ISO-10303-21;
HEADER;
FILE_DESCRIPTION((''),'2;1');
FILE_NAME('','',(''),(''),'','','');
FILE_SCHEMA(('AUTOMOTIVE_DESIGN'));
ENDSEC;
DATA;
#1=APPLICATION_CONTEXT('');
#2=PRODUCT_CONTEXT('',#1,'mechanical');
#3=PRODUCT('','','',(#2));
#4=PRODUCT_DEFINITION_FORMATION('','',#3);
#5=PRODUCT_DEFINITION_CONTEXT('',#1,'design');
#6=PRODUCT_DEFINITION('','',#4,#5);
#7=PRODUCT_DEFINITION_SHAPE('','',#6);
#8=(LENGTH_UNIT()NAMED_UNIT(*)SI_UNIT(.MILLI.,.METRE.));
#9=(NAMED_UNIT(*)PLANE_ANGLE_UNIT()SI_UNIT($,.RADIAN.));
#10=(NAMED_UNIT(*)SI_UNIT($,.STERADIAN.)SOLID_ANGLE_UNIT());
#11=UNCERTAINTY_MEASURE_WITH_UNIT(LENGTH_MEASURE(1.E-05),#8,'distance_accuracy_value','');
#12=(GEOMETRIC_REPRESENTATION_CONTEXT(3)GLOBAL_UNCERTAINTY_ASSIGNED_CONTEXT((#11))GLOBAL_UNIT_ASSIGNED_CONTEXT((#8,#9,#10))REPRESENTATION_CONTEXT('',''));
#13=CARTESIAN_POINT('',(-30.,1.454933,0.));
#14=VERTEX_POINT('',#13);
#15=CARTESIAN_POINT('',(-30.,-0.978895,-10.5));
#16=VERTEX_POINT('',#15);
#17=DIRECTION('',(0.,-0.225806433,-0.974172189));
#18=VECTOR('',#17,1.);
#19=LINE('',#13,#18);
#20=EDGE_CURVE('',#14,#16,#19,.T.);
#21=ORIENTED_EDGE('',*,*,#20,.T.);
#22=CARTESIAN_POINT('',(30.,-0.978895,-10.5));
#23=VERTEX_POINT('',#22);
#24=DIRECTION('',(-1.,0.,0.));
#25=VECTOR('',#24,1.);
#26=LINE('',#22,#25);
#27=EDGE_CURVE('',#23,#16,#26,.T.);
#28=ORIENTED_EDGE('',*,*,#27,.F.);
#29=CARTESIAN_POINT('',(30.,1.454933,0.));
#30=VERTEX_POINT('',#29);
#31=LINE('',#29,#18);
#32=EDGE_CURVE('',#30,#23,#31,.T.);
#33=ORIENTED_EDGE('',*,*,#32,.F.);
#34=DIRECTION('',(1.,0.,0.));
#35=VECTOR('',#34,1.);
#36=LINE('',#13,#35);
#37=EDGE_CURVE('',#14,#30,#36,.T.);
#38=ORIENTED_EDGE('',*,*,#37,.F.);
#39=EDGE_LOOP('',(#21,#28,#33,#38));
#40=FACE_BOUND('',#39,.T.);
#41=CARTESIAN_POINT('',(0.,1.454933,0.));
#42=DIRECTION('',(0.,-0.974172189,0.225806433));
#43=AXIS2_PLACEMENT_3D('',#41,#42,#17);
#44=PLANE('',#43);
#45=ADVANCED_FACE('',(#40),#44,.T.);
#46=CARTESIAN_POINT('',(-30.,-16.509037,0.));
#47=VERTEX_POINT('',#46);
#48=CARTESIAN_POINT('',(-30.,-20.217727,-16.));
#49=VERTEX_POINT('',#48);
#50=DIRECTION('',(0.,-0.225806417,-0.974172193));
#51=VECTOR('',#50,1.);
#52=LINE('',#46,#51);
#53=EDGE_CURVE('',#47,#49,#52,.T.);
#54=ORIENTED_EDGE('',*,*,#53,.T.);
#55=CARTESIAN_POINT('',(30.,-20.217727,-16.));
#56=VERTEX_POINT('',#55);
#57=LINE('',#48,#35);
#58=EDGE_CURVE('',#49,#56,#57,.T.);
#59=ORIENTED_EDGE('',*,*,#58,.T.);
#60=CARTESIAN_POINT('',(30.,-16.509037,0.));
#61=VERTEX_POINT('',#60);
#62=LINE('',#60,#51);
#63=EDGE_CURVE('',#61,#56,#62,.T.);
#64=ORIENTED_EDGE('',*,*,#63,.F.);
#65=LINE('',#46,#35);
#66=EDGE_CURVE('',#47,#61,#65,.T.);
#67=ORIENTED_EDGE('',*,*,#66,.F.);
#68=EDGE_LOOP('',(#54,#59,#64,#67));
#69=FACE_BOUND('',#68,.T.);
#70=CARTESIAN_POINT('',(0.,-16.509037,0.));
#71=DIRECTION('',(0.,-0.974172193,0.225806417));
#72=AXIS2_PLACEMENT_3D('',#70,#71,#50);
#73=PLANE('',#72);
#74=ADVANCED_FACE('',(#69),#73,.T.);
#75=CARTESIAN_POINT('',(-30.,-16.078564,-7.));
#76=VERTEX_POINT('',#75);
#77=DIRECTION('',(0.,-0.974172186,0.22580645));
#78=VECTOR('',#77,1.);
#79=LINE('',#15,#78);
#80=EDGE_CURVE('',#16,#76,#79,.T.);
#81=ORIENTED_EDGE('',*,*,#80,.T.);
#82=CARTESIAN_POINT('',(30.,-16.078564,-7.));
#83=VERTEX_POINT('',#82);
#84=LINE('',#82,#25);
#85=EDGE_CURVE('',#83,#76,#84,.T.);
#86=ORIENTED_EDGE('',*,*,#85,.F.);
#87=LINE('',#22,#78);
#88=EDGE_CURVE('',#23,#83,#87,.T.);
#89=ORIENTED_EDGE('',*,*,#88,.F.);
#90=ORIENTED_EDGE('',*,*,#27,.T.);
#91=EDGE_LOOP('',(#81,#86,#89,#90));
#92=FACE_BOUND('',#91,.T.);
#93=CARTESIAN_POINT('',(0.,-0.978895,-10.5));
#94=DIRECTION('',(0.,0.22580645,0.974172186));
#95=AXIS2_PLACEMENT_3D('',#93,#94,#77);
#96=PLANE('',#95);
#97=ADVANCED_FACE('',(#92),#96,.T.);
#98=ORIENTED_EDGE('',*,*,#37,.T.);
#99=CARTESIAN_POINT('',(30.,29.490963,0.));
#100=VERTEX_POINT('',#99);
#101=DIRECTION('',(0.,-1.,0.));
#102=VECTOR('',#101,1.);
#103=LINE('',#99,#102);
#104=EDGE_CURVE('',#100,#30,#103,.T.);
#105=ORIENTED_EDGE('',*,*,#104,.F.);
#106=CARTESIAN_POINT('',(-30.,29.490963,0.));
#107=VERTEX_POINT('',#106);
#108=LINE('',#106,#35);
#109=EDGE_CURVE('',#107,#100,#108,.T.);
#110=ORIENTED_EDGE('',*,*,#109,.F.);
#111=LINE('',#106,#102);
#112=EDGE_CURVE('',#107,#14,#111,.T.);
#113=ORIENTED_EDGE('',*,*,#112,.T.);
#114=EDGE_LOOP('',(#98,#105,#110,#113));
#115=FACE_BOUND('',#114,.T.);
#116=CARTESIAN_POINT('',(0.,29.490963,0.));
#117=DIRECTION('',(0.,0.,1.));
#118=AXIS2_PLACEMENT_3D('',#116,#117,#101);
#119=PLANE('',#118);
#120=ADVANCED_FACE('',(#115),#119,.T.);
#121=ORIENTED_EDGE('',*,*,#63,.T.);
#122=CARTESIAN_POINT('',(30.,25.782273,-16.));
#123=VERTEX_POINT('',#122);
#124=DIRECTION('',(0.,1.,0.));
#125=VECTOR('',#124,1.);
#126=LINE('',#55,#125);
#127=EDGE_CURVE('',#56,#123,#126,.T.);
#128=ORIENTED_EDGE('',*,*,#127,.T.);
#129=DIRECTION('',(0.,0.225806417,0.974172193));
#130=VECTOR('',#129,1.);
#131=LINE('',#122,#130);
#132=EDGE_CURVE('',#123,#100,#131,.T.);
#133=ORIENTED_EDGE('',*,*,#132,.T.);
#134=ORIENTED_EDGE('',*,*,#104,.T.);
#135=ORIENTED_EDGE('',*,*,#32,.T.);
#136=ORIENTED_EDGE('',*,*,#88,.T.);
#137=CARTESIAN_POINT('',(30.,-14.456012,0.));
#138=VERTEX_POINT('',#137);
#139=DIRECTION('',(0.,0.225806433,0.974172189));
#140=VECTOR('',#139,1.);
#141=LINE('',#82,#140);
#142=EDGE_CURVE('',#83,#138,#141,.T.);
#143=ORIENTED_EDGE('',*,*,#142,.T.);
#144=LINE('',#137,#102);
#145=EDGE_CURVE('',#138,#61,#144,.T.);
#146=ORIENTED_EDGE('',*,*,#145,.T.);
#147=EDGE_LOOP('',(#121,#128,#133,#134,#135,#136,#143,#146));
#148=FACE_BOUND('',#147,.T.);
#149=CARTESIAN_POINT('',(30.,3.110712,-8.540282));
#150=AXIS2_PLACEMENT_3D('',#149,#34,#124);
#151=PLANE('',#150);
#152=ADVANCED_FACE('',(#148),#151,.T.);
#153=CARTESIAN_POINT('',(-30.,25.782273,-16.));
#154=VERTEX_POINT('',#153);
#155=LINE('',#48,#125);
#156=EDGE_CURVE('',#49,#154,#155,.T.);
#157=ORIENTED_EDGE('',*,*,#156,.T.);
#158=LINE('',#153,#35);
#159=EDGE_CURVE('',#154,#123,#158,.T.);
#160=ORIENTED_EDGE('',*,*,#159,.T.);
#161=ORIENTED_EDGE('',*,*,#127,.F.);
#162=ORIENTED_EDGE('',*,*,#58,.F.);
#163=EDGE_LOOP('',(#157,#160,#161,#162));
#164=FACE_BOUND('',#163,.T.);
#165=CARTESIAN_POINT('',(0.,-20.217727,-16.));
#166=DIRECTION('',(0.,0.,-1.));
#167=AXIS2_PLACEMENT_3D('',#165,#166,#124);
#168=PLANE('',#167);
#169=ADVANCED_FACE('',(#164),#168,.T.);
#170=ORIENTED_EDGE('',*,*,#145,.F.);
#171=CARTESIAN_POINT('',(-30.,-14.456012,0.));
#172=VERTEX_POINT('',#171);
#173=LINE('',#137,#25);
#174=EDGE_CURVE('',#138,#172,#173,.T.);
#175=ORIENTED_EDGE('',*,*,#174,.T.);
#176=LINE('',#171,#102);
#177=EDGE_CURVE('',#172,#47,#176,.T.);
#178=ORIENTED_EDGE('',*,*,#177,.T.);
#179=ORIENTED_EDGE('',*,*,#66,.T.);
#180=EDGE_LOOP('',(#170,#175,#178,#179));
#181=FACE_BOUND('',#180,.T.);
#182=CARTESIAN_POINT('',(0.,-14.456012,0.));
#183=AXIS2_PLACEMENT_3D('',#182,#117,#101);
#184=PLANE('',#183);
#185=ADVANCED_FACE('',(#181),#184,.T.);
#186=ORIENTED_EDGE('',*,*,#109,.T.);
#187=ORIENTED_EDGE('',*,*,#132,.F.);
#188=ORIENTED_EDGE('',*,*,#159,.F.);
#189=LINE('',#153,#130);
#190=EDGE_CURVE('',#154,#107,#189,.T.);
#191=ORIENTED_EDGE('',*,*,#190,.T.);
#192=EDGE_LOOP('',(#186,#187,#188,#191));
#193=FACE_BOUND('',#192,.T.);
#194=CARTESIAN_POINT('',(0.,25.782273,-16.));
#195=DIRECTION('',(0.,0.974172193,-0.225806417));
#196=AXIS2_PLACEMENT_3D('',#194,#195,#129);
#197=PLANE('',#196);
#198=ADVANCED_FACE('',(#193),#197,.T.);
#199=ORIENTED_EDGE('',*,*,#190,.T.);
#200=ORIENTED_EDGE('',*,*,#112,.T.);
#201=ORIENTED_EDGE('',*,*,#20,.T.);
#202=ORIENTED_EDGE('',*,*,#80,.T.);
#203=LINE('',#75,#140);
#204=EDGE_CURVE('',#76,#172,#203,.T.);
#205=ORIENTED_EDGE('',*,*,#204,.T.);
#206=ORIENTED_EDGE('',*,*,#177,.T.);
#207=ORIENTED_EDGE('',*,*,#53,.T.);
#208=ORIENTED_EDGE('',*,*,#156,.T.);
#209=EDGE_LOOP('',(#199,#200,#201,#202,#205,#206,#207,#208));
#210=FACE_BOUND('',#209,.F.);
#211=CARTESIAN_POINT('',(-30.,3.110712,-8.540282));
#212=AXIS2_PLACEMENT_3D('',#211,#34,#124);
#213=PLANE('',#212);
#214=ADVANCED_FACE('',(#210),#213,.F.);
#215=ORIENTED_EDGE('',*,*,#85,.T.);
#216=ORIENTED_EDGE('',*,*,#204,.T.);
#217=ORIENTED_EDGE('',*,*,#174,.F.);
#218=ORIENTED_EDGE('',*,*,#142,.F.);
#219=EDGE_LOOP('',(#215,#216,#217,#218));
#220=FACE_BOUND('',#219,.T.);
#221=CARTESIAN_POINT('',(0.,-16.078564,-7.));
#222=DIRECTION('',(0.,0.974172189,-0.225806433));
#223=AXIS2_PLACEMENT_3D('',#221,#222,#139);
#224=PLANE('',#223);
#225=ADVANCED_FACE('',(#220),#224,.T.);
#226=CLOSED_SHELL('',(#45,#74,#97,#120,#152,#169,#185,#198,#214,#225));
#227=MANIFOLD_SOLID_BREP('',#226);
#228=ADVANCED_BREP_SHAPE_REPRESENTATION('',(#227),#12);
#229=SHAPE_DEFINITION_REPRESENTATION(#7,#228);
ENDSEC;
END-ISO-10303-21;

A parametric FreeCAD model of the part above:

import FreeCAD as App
import Part
import Sketcher

doc = App.newDocument("Part")
body = doc.addObject("PartDesign::Body", "Body")

sketch1 = body.newObject("Sketcher::SketchObject", "Sketch")
sketch1.AttachmentSupport = (doc.getObject("YZ_Plane"), [""])
sketch1.MapMode = "FlatFace"
sketch1.addGeometry([
    Part.LineSegment(App.Vector(-14.5, 0, 0), App.Vector(-16.5, 0, 0)),
    Part.LineSegment(App.Vector(-16.5, 0, 0), App.Vector(-20.2, -16, 0)),
    Part.LineSegment(App.Vector(-20.2, -16, 0), App.Vector(25.8, -16, 0)),
    Part.LineSegment(App.Vector(25.8, -16, 0), App.Vector(29.5, 0, 0)),
    Part.LineSegment(App.Vector(29.5, 0, 0), App.Vector(1.5, 0, 0)),
    Part.LineSegment(App.Vector(1.5, 0, 0), App.Vector(-1, -10.5, 0)),
    Part.LineSegment(App.Vector(-1, -10.5, 0), App.Vector(-16.1, -7, 0)),
    Part.LineSegment(App.Vector(-16.1, -7, 0), App.Vector(-14.5, 0, 0)),
], False)
sketch1.addConstraint([
    Sketcher.Constraint("Coincident", 0, 2, 1, 1),
    Sketcher.Constraint("Coincident", 1, 2, 2, 1),
    Sketcher.Constraint("Coincident", 2, 2, 3, 1),
    Sketcher.Constraint("Coincident", 3, 2, 4, 1),
    Sketcher.Constraint("Coincident", 4, 2, 5, 1),
    Sketcher.Constraint("Coincident", 5, 2, 6, 1),
    Sketcher.Constraint("Coincident", 6, 2, 7, 1),
    Sketcher.Constraint("Coincident", 7, 2, 0, 1),
    Sketcher.Constraint("Horizontal", 0),
    Sketcher.Constraint("Horizontal", 2),
    Sketcher.Constraint("Horizontal", 4),
    Sketcher.Constraint("PointOnObject", 0, 2, -1),
    Sketcher.Constraint("PointOnObject", 3, 2, -1),
    Sketcher.Constraint("Parallel", 1, 3),
    Sketcher.Constraint("Parallel", 3, 5),
    Sketcher.Constraint("Perpendicular", 5, 6),
    Sketcher.Constraint("Perpendicular", 6, 7),
    Sketcher.Constraint("DistanceX", 2, 1, 2, 2, 46.0),
    Sketcher.Constraint("DistanceY", 1, 2, -1, 1, 16.0),
    Sketcher.Constraint("DistanceY", 6, 2, -1, 1, 7.0),
    Sketcher.Constraint("Distance", 6, 15.5),
    Sketcher.Constraint("DistanceY", 5, 2, -1, 1, 10.5),
    Sketcher.Constraint("DistanceX", 4, 2, 4, 1, 28.03603),
    Sketcher.Constraint("DistanceX", 0, 2, -1, 1, 16.509037),
])
pad1 = body.newObject("PartDesign::Pad", "Pad")
pad1.Profile = sketch1
pad1.Type = "TwoLengths"
pad1.Length = 30
pad1.Length2 = 30

doc.recompute()
